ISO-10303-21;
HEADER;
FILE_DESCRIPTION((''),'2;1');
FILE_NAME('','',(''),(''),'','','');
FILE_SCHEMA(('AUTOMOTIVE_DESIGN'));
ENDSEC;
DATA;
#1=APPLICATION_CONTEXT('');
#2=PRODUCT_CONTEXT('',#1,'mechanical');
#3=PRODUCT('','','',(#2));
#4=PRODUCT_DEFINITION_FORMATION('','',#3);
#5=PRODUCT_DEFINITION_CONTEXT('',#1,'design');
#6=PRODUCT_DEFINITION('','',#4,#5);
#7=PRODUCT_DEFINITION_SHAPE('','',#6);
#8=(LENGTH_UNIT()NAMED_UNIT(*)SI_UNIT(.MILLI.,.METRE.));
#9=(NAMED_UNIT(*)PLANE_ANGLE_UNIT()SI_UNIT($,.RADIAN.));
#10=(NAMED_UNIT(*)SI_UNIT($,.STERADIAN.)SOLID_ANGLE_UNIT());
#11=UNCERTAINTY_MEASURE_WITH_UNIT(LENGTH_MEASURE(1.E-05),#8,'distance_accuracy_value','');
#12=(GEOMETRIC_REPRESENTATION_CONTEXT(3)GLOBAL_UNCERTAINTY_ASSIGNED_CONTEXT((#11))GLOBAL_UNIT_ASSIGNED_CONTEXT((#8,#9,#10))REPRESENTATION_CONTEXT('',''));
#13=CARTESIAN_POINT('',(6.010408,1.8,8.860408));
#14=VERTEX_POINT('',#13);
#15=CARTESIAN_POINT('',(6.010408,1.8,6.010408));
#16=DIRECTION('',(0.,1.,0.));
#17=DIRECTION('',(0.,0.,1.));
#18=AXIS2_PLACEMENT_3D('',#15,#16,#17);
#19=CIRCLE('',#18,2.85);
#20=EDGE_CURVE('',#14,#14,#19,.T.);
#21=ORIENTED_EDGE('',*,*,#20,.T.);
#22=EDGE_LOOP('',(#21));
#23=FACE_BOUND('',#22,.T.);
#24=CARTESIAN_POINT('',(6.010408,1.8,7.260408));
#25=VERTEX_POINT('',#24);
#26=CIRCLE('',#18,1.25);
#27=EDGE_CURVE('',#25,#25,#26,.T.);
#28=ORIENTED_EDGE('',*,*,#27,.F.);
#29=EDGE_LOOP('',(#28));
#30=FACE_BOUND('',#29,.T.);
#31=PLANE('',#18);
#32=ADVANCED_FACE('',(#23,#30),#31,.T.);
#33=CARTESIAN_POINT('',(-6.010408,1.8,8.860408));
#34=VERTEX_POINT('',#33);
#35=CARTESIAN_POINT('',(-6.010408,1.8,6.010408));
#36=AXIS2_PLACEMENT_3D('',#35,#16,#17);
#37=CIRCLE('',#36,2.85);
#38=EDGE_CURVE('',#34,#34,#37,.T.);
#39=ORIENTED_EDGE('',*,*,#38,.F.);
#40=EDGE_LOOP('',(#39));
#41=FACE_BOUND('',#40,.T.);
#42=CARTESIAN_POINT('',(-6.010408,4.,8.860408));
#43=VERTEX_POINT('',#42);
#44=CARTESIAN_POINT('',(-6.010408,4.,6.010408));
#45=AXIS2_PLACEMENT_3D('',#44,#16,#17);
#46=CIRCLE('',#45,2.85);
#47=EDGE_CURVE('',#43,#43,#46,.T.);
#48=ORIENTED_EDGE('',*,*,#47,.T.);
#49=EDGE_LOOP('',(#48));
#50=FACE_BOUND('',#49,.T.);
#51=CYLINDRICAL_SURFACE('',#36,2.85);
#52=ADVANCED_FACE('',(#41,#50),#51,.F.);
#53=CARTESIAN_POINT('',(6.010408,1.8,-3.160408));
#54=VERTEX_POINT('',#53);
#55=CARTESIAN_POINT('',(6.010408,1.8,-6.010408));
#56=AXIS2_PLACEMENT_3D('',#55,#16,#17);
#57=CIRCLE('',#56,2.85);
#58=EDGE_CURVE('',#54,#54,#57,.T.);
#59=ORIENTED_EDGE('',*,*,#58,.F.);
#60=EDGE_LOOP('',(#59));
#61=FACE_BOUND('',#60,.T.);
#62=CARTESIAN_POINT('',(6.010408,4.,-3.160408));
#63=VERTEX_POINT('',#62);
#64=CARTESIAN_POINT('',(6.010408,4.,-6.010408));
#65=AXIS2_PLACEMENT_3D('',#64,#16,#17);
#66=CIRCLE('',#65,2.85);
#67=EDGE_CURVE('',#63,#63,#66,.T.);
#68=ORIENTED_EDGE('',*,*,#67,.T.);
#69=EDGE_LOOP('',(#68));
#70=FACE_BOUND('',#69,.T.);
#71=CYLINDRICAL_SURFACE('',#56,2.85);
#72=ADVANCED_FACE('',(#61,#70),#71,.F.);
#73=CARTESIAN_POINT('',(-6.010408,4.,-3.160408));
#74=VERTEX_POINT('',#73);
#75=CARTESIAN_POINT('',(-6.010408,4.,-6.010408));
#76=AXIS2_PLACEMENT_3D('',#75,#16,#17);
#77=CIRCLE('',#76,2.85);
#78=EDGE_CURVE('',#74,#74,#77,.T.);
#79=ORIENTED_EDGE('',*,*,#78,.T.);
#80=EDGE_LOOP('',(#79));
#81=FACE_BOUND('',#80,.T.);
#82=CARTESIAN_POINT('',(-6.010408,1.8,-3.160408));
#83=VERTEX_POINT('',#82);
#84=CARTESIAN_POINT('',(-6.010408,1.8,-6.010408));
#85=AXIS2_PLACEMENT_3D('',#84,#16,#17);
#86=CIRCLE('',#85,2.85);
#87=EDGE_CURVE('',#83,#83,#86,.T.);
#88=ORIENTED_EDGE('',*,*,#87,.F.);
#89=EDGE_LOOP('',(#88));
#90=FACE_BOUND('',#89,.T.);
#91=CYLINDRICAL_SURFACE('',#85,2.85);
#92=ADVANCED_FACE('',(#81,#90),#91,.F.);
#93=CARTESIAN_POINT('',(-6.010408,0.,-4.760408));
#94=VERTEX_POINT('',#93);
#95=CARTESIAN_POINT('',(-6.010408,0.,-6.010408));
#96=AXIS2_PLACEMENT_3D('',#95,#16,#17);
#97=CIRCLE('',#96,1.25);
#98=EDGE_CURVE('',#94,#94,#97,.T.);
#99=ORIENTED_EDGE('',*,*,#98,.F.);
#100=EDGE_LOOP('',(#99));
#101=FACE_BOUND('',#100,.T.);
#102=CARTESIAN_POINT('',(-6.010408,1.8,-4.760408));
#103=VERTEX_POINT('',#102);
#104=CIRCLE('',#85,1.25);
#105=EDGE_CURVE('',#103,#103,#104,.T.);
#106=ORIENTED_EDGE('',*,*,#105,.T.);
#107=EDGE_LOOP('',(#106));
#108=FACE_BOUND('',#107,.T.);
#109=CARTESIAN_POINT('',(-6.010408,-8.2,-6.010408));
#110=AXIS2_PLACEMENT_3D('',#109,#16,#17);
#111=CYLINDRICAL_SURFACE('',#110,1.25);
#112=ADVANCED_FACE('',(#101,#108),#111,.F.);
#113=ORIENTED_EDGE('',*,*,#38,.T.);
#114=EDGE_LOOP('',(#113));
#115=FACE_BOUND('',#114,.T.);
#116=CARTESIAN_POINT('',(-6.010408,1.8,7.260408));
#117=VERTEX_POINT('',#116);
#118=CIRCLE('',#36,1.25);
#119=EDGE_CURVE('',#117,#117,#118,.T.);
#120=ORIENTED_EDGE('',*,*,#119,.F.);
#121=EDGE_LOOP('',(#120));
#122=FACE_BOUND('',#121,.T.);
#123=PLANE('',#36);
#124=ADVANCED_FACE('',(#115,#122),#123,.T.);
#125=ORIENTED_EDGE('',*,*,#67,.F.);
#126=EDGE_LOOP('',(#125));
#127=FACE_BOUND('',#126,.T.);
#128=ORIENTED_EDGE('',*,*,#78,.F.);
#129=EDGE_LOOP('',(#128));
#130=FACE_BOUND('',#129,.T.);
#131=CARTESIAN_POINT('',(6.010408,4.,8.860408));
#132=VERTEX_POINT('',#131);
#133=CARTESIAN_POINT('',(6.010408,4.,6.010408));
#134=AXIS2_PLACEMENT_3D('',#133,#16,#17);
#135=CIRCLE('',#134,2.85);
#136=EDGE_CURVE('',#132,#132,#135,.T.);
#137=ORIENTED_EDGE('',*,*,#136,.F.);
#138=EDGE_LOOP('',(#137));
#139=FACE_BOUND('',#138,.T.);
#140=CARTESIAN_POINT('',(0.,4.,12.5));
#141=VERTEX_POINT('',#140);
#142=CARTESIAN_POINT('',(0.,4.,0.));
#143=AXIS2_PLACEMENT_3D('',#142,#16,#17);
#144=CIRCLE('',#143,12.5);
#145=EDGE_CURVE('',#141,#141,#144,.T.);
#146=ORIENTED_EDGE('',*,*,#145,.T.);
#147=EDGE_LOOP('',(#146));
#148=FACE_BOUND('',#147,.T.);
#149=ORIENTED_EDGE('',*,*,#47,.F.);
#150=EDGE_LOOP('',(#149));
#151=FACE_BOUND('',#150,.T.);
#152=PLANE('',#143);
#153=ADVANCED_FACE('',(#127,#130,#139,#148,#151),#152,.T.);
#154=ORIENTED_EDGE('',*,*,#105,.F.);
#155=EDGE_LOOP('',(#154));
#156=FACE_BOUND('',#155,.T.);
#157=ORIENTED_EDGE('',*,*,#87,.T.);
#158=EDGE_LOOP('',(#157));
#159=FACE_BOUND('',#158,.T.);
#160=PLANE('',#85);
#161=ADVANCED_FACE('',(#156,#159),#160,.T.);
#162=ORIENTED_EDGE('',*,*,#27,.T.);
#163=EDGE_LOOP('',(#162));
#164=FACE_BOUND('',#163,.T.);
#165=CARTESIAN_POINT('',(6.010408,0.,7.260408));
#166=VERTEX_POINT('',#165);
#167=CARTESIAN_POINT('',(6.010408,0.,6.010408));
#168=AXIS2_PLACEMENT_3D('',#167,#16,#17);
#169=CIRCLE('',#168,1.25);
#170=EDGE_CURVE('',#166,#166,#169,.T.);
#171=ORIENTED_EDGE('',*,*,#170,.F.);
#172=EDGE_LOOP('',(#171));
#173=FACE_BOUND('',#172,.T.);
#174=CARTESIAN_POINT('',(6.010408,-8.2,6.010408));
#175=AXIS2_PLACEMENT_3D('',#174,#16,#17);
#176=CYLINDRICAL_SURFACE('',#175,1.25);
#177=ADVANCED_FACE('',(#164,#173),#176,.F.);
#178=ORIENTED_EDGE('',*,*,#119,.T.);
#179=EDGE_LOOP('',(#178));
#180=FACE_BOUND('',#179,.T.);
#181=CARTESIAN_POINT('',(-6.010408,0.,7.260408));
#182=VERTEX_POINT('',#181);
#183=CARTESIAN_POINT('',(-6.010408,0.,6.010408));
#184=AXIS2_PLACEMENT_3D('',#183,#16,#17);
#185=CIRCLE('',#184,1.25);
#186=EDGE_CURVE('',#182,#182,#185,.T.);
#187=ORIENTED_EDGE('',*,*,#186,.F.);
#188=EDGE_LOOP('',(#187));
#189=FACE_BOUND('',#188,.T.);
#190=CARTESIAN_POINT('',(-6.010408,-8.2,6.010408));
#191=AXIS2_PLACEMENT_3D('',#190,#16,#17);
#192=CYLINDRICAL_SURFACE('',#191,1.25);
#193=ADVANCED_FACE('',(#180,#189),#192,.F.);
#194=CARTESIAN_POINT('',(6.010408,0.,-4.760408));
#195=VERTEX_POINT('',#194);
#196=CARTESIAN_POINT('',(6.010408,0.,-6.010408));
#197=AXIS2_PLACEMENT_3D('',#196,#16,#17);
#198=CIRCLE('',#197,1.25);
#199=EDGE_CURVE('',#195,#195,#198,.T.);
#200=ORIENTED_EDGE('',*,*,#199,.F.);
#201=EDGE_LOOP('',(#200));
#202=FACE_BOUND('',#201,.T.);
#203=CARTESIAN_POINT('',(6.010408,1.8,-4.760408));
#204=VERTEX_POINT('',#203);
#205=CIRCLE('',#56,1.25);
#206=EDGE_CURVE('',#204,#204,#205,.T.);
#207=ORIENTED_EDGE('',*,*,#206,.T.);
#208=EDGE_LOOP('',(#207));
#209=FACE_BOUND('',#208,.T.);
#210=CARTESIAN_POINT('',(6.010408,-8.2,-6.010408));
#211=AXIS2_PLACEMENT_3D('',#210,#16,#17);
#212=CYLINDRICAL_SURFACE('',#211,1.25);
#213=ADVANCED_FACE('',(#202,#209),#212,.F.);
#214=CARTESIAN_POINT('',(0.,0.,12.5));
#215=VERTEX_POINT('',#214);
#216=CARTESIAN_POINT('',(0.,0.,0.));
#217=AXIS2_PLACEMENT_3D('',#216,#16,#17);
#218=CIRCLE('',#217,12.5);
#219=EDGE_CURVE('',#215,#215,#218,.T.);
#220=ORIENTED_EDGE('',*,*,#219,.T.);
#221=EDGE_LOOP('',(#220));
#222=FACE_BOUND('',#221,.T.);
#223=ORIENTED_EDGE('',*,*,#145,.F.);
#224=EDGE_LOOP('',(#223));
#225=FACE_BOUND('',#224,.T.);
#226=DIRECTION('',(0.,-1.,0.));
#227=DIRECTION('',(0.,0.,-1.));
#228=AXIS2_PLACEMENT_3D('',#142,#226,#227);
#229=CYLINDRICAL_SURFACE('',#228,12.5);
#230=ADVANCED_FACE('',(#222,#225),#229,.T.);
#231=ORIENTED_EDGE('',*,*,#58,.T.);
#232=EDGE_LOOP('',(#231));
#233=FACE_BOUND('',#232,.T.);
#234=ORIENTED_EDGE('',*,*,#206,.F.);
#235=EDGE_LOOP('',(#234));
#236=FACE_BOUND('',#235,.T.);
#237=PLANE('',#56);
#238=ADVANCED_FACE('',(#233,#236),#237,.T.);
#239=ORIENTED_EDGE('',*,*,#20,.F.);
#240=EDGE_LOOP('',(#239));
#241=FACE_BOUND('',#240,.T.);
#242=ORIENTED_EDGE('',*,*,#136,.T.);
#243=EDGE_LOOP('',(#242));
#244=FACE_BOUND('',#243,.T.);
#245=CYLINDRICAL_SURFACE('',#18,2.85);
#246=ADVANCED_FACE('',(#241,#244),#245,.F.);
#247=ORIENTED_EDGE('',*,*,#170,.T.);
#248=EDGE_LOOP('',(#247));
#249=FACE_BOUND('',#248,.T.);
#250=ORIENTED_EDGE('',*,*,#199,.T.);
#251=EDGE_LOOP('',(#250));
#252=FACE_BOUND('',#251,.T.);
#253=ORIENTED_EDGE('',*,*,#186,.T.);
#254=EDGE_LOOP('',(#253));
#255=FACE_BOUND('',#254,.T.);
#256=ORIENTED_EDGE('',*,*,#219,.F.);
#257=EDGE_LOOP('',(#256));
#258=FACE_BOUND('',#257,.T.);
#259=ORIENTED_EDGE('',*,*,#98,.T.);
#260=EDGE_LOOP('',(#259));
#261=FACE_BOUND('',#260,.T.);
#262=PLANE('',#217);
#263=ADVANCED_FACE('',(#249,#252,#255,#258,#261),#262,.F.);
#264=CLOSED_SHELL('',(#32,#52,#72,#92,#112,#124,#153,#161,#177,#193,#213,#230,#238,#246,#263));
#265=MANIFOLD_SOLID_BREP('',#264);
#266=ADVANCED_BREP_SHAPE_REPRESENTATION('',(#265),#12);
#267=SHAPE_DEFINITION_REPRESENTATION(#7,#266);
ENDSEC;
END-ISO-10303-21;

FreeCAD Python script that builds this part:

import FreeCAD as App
import Part
import Sketcher
from FreeCAD import Vector
Q = App.Units.Quantity

doc = App.newDocument("Part")
body = doc.addObject("PartDesign::Body", "Body")

sketch1 = body.newObject("Sketcher::SketchObject", "Sketch")
sketch1.AttachmentSupport = (doc.getObject("XZ_Plane"), [""])
sketch1.MapMode = "FlatFace"
sketch1.addGeometry(Part.Circle(Vector(0, 0, 0), Vector(0, 0, 1), 12), False)
sketch1.addConstraint([
    Sketcher.Constraint("Coincident", 0, 3, -1, 1),
    Sketcher.Constraint("Diameter", 0, Q("25 mm")),
])
pad1 = body.newObject("PartDesign::Pad", "Pad")
pad1.Profile = sketch1
pad1.Length = 4
pad1.Reversed = True

sketch2 = body.newObject("Sketcher::SketchObject", "Sketch001")
sketch2.AttachmentSupport = (doc.getObject("XZ_Plane"), [""])
sketch2.MapMode = "FlatFace"
sketch2.AttachmentOffset = App.Placement(Vector(0, 0, -4), App.Rotation())
sketch2.addGeometry([
    Part.Circle(Vector(6, -6, 0), Vector(0, 0, 1), 2.9),
    Part.Circle(Vector(6, 6, 0), Vector(0, 0, 1), 2.9),
    Part.Circle(Vector(-6, 6, 0), Vector(0, 0, 1), 2.9),
    Part.Circle(Vector(-6, -6, 0), Vector(0, 0, 1), 2.9),
], False)
sketch2.addConstraint([
    Sketcher.Constraint("Equal", 0, 1),
    Sketcher.Constraint("Equal", 1, 2),
    Sketcher.Constraint("Equal", 2, 3),
    Sketcher.Constraint("Symmetric", 0, 3, 2, 3, -1, 1),
    Sketcher.Constraint("Symmetric", 1, 3, 3, 3, -1, 1),
    Sketcher.Constraint("Symmetric", 1, 3, 2, 3, -2),
    Sketcher.Constraint("Diameter", 0, Q("5.7 mm")),
    Sketcher.Constraint("DistanceX", -1, 1, 0, 3, Q("6.010408 mm")),
    Sketcher.Constraint("DistanceY", 0, 3, -1, 1, Q("6.010408 mm")),
])
pocket1 = body.newObject("PartDesign::Pocket", "Pocket")
pocket1.Profile = sketch2
pocket1.Length = 2.2
pocket1.Reversed = True

sketch3 = body.newObject("Sketcher::SketchObject", "Sketch002")
sketch3.AttachmentSupport = (doc.getObject("XZ_Plane"), [""])
sketch3.MapMode = "FlatFace"
sketch3.AttachmentOffset = App.Placement(Vector(0, 0, -1.8), App.Rotation())
sketch3.addGeometry([
    Part.Circle(Vector(-6, -6, 0), Vector(0, 0, 1), 1.2),
    Part.Circle(Vector(6, -6, 0), Vector(0, 0, 1), 1.2),
    Part.Circle(Vector(6, 6, 0), Vector(0, 0, 1), 1.2),
    Part.Circle(Vector(-6, 6, 0), Vector(0, 0, 1), 1.2),
], False)
sketch3.addConstraint([
    Sketcher.Constraint("Equal", 0, 1),
    Sketcher.Constraint("Equal", 1, 2),
    Sketcher.Constraint("Equal", 2, 3),
    Sketcher.Constraint("Symmetric", 0, 3, 2, 3, -1, 1),
    Sketcher.Constraint("Symmetric", 1, 3, 3, 3, -1, 1),
    Sketcher.Constraint("Symmetric", 0, 3, 1, 3, -2),
    Sketcher.Constraint("Diameter", 0, Q("2.5 mm")),
    Sketcher.Constraint("DistanceX", 0, 3, -1, 1, Q("6.010408 mm")),
    Sketcher.Constraint("DistanceY", 0, 3, -1, 1, Q("6.010408 mm")),
])
pocket2 = body.newObject("PartDesign::Pocket", "Pocket001")
pocket2.Profile = sketch3
pocket2.Length = 10
pocket2.Reversed = True

doc.recompute()
